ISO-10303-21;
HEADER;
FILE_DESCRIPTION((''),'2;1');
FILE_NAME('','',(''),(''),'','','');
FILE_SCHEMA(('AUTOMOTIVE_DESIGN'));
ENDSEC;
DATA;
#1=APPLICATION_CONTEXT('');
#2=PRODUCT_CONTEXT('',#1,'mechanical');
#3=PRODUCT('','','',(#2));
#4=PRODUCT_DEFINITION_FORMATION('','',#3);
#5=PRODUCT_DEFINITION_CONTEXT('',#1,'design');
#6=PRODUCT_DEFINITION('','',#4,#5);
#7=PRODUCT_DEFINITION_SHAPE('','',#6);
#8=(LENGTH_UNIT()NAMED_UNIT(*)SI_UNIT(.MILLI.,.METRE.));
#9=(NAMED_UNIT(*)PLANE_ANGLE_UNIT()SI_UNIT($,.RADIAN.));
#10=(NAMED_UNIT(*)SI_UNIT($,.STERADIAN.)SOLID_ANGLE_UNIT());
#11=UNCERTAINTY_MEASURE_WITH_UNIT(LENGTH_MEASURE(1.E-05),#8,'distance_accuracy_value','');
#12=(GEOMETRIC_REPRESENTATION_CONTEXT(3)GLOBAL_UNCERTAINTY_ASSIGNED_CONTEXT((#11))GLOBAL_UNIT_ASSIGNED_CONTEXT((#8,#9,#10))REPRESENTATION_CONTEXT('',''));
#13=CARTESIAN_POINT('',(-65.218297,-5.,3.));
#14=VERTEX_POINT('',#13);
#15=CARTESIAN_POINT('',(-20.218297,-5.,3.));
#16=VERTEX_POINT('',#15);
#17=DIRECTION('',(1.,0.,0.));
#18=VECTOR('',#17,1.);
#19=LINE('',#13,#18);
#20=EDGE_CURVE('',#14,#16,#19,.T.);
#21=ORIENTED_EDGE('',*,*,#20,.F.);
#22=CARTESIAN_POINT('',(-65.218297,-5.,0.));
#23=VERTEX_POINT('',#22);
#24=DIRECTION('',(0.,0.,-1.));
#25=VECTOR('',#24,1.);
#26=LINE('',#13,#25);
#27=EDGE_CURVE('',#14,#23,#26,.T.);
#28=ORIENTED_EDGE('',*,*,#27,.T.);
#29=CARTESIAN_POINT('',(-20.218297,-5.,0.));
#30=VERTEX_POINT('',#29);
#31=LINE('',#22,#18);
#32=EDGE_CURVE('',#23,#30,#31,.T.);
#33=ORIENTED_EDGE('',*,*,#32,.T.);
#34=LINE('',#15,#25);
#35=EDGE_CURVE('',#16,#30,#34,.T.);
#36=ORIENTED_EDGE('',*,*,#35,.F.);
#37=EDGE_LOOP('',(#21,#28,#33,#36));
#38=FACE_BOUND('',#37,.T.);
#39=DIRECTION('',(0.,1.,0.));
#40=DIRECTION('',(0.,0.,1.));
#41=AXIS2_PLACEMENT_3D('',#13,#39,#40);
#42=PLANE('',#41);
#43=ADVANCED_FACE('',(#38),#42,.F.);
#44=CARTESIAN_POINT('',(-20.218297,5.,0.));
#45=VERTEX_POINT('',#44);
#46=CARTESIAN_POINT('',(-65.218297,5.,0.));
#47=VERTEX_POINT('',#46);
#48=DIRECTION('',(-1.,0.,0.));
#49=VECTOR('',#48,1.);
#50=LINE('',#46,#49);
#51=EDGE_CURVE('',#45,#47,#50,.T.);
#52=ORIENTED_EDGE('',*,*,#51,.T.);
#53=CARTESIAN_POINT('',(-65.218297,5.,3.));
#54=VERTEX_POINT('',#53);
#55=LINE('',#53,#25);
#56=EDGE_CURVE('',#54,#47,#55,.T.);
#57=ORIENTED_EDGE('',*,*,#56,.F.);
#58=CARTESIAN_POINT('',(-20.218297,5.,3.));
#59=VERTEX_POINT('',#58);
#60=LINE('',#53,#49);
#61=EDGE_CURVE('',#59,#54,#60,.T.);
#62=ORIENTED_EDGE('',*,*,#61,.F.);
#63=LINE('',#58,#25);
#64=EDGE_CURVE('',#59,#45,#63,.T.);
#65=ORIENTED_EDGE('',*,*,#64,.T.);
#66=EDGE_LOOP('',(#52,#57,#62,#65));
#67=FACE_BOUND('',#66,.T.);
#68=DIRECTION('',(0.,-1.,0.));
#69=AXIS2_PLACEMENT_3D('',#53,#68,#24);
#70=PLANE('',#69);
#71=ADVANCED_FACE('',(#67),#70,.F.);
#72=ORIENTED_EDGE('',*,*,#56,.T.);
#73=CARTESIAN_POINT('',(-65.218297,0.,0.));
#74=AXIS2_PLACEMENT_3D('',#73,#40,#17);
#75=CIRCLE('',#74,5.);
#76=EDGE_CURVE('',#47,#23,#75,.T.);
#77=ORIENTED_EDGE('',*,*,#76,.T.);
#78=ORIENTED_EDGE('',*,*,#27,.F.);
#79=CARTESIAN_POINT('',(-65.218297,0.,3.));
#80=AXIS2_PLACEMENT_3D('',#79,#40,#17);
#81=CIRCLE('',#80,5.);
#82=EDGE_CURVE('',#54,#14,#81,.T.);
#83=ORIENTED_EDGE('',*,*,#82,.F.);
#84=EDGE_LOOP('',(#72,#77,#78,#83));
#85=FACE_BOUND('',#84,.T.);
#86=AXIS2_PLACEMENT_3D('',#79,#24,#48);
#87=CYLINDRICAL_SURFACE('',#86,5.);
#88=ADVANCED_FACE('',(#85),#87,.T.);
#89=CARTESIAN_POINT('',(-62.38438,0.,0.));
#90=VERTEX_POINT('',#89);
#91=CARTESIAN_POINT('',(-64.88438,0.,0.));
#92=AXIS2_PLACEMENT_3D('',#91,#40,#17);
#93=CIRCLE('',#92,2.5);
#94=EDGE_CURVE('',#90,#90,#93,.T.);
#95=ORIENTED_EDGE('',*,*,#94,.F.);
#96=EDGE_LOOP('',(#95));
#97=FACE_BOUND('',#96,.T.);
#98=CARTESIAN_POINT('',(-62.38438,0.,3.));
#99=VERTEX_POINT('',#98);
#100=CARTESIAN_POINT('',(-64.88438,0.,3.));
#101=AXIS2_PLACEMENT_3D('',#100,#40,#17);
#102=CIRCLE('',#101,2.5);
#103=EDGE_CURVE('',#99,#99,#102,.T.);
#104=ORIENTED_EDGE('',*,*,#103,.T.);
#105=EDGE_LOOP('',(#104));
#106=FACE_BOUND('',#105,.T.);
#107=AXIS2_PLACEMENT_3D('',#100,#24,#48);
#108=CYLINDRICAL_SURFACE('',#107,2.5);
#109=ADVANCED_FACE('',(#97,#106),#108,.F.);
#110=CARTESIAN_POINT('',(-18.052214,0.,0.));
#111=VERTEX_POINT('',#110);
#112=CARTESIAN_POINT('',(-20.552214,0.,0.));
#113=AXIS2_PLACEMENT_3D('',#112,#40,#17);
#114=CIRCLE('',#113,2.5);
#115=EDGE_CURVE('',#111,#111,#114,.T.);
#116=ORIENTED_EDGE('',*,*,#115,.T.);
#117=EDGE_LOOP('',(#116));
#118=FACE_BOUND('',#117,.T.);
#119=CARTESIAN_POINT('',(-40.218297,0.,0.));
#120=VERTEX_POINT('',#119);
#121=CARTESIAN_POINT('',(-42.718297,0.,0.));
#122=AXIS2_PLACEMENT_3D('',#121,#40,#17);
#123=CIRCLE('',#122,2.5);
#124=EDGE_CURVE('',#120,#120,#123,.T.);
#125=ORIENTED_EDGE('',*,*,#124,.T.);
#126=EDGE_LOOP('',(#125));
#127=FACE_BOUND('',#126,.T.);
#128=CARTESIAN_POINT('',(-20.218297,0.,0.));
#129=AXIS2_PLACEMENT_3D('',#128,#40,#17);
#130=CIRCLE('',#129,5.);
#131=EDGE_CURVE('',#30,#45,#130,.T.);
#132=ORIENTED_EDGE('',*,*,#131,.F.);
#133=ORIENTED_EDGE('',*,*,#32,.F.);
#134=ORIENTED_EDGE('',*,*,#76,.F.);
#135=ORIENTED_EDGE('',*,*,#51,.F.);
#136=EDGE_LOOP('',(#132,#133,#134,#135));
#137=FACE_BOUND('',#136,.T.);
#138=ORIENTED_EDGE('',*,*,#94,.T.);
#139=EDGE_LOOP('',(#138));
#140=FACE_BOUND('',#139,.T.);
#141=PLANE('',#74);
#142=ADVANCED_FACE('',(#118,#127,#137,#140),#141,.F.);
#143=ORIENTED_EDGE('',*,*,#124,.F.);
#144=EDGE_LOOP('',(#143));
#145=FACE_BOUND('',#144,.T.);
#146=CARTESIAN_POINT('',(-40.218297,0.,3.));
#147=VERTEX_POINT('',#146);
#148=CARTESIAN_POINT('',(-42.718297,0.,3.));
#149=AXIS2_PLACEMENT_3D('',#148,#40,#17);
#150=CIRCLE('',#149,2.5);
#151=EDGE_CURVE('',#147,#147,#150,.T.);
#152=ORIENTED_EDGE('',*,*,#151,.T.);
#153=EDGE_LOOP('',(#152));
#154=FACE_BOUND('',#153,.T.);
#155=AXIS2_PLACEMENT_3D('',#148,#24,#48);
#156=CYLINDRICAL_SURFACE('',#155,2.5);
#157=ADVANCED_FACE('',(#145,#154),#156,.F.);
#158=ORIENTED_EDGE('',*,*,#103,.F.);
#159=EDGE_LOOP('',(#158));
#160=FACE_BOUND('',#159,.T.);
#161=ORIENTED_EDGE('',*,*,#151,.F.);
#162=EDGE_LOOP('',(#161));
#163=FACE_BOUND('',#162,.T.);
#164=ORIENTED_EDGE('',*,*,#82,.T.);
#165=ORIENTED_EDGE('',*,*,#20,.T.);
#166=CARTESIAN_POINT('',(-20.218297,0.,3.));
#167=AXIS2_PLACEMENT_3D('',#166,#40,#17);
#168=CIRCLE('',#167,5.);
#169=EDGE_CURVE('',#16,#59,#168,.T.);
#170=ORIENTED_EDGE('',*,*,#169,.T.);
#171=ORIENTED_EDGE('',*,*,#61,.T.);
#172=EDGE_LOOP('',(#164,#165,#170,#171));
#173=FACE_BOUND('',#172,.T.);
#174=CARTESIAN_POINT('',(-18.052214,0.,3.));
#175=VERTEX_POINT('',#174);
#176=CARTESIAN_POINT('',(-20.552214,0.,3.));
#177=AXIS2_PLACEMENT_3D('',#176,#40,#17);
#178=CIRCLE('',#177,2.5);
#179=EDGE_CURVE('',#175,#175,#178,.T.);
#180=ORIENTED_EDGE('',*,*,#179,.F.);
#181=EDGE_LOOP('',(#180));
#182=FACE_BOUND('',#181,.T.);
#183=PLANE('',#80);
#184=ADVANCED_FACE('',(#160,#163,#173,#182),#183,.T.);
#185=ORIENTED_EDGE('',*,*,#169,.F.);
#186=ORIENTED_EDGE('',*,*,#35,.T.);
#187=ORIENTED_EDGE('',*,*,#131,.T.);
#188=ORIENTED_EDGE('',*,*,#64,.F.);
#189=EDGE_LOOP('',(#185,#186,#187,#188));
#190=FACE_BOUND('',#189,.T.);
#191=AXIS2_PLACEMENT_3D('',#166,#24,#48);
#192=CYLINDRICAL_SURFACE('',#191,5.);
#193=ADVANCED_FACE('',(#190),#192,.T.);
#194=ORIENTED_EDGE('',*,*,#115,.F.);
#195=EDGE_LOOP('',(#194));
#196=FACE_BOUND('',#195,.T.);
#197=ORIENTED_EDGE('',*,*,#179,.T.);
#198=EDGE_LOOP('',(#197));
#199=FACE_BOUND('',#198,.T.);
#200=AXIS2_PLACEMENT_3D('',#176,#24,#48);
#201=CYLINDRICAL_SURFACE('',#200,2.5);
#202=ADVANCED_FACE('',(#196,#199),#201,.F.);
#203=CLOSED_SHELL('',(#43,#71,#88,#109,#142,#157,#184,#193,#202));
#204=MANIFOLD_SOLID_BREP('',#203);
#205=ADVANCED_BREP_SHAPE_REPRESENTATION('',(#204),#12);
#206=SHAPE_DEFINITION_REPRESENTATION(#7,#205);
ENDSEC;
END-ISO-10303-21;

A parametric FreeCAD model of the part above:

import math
import FreeCAD as App
import Part
import Sketcher
from FreeCAD import Vector

doc = App.newDocument("Part")
body = doc.addObject("PartDesign::Body", "Body")

sketch1 = body.newObject("Sketcher::SketchObject", "Sketch")
sketch1.AttachmentSupport = (doc.getObject("XY_Plane"), [""])
sketch1.MapMode = "FlatFace"
sketch1.addGeometry([
    Part.LineSegment(Vector(-20.2, 5, 0), Vector(-65.2, 5, 0)),
    Part.ArcOfCircle(Part.Circle(Vector(-65.2, 0, 0), Vector(0, 0, 1), 5), math.radians(90), math.radians(270)),
    Part.LineSegment(Vector(-65.2, -5, 0), Vector(-20.2, -5, 0)),
    Part.ArcOfCircle(Part.Circle(Vector(-20.2, 0, 0), Vector(0, 0, 1), 5), math.radians(-90), math.radians(90)),
    Part.Circle(Vector(-20.6, 0, 0), Vector(0, 0, 1), 2.5),
    Part.Circle(Vector(-42.7, 0, 0), Vector(0, 0, 1), 2.5),
    Part.Circle(Vector(-64.9, 0, 0), Vector(0, 0, 1), 2.5),
], False)
sketch1.addConstraint([
    Sketcher.Constraint("Tangent", 0, 2, 1, 1),
    Sketcher.Constraint("Tangent", 1, 2, 2, 1),
    Sketcher.Constraint("Tangent", 2, 2, 3, 1),
    Sketcher.Constraint("Tangent", 3, 2, 0, 1),
    Sketcher.Constraint("Horizontal", 0),
    Sketcher.Constraint("Horizontal", 2),
    Sketcher.Constraint("Equal", 4, 5),
    Sketcher.Constraint("Equal", 5, 6),
    Sketcher.Constraint("PointOnObject", 1, 3, -1),
    Sketcher.Constraint("PointOnObject", 4, 3, -1),
    Sketcher.Constraint("PointOnObject", 5, 3, -1),
    Sketcher.Constraint("PointOnObject", 6, 3, -1),
    Sketcher.Constraint("Diameter", 4, 5.0),
    Sketcher.Constraint("Radius", 1, 5.0),
    Sketcher.Constraint("DistanceX", 0, 2, 0, 1, 45.0),
    Sketcher.Constraint("DistanceX", 1, 3, 5, 3, 22.5),
    Sketcher.Constraint("DistanceX", 6, 3, -1, 1, 64.88438),
    Sketcher.Constraint("DistanceX", 1, 3, -1, 1, 65.218297),
    Sketcher.Constraint("DistanceX", 4, 3, -1, 1, 20.552214),
])
pad1 = body.newObject("PartDesign::Pad", "Pad")
pad1.Profile = sketch1
pad1.Length = 3

doc.recompute()
